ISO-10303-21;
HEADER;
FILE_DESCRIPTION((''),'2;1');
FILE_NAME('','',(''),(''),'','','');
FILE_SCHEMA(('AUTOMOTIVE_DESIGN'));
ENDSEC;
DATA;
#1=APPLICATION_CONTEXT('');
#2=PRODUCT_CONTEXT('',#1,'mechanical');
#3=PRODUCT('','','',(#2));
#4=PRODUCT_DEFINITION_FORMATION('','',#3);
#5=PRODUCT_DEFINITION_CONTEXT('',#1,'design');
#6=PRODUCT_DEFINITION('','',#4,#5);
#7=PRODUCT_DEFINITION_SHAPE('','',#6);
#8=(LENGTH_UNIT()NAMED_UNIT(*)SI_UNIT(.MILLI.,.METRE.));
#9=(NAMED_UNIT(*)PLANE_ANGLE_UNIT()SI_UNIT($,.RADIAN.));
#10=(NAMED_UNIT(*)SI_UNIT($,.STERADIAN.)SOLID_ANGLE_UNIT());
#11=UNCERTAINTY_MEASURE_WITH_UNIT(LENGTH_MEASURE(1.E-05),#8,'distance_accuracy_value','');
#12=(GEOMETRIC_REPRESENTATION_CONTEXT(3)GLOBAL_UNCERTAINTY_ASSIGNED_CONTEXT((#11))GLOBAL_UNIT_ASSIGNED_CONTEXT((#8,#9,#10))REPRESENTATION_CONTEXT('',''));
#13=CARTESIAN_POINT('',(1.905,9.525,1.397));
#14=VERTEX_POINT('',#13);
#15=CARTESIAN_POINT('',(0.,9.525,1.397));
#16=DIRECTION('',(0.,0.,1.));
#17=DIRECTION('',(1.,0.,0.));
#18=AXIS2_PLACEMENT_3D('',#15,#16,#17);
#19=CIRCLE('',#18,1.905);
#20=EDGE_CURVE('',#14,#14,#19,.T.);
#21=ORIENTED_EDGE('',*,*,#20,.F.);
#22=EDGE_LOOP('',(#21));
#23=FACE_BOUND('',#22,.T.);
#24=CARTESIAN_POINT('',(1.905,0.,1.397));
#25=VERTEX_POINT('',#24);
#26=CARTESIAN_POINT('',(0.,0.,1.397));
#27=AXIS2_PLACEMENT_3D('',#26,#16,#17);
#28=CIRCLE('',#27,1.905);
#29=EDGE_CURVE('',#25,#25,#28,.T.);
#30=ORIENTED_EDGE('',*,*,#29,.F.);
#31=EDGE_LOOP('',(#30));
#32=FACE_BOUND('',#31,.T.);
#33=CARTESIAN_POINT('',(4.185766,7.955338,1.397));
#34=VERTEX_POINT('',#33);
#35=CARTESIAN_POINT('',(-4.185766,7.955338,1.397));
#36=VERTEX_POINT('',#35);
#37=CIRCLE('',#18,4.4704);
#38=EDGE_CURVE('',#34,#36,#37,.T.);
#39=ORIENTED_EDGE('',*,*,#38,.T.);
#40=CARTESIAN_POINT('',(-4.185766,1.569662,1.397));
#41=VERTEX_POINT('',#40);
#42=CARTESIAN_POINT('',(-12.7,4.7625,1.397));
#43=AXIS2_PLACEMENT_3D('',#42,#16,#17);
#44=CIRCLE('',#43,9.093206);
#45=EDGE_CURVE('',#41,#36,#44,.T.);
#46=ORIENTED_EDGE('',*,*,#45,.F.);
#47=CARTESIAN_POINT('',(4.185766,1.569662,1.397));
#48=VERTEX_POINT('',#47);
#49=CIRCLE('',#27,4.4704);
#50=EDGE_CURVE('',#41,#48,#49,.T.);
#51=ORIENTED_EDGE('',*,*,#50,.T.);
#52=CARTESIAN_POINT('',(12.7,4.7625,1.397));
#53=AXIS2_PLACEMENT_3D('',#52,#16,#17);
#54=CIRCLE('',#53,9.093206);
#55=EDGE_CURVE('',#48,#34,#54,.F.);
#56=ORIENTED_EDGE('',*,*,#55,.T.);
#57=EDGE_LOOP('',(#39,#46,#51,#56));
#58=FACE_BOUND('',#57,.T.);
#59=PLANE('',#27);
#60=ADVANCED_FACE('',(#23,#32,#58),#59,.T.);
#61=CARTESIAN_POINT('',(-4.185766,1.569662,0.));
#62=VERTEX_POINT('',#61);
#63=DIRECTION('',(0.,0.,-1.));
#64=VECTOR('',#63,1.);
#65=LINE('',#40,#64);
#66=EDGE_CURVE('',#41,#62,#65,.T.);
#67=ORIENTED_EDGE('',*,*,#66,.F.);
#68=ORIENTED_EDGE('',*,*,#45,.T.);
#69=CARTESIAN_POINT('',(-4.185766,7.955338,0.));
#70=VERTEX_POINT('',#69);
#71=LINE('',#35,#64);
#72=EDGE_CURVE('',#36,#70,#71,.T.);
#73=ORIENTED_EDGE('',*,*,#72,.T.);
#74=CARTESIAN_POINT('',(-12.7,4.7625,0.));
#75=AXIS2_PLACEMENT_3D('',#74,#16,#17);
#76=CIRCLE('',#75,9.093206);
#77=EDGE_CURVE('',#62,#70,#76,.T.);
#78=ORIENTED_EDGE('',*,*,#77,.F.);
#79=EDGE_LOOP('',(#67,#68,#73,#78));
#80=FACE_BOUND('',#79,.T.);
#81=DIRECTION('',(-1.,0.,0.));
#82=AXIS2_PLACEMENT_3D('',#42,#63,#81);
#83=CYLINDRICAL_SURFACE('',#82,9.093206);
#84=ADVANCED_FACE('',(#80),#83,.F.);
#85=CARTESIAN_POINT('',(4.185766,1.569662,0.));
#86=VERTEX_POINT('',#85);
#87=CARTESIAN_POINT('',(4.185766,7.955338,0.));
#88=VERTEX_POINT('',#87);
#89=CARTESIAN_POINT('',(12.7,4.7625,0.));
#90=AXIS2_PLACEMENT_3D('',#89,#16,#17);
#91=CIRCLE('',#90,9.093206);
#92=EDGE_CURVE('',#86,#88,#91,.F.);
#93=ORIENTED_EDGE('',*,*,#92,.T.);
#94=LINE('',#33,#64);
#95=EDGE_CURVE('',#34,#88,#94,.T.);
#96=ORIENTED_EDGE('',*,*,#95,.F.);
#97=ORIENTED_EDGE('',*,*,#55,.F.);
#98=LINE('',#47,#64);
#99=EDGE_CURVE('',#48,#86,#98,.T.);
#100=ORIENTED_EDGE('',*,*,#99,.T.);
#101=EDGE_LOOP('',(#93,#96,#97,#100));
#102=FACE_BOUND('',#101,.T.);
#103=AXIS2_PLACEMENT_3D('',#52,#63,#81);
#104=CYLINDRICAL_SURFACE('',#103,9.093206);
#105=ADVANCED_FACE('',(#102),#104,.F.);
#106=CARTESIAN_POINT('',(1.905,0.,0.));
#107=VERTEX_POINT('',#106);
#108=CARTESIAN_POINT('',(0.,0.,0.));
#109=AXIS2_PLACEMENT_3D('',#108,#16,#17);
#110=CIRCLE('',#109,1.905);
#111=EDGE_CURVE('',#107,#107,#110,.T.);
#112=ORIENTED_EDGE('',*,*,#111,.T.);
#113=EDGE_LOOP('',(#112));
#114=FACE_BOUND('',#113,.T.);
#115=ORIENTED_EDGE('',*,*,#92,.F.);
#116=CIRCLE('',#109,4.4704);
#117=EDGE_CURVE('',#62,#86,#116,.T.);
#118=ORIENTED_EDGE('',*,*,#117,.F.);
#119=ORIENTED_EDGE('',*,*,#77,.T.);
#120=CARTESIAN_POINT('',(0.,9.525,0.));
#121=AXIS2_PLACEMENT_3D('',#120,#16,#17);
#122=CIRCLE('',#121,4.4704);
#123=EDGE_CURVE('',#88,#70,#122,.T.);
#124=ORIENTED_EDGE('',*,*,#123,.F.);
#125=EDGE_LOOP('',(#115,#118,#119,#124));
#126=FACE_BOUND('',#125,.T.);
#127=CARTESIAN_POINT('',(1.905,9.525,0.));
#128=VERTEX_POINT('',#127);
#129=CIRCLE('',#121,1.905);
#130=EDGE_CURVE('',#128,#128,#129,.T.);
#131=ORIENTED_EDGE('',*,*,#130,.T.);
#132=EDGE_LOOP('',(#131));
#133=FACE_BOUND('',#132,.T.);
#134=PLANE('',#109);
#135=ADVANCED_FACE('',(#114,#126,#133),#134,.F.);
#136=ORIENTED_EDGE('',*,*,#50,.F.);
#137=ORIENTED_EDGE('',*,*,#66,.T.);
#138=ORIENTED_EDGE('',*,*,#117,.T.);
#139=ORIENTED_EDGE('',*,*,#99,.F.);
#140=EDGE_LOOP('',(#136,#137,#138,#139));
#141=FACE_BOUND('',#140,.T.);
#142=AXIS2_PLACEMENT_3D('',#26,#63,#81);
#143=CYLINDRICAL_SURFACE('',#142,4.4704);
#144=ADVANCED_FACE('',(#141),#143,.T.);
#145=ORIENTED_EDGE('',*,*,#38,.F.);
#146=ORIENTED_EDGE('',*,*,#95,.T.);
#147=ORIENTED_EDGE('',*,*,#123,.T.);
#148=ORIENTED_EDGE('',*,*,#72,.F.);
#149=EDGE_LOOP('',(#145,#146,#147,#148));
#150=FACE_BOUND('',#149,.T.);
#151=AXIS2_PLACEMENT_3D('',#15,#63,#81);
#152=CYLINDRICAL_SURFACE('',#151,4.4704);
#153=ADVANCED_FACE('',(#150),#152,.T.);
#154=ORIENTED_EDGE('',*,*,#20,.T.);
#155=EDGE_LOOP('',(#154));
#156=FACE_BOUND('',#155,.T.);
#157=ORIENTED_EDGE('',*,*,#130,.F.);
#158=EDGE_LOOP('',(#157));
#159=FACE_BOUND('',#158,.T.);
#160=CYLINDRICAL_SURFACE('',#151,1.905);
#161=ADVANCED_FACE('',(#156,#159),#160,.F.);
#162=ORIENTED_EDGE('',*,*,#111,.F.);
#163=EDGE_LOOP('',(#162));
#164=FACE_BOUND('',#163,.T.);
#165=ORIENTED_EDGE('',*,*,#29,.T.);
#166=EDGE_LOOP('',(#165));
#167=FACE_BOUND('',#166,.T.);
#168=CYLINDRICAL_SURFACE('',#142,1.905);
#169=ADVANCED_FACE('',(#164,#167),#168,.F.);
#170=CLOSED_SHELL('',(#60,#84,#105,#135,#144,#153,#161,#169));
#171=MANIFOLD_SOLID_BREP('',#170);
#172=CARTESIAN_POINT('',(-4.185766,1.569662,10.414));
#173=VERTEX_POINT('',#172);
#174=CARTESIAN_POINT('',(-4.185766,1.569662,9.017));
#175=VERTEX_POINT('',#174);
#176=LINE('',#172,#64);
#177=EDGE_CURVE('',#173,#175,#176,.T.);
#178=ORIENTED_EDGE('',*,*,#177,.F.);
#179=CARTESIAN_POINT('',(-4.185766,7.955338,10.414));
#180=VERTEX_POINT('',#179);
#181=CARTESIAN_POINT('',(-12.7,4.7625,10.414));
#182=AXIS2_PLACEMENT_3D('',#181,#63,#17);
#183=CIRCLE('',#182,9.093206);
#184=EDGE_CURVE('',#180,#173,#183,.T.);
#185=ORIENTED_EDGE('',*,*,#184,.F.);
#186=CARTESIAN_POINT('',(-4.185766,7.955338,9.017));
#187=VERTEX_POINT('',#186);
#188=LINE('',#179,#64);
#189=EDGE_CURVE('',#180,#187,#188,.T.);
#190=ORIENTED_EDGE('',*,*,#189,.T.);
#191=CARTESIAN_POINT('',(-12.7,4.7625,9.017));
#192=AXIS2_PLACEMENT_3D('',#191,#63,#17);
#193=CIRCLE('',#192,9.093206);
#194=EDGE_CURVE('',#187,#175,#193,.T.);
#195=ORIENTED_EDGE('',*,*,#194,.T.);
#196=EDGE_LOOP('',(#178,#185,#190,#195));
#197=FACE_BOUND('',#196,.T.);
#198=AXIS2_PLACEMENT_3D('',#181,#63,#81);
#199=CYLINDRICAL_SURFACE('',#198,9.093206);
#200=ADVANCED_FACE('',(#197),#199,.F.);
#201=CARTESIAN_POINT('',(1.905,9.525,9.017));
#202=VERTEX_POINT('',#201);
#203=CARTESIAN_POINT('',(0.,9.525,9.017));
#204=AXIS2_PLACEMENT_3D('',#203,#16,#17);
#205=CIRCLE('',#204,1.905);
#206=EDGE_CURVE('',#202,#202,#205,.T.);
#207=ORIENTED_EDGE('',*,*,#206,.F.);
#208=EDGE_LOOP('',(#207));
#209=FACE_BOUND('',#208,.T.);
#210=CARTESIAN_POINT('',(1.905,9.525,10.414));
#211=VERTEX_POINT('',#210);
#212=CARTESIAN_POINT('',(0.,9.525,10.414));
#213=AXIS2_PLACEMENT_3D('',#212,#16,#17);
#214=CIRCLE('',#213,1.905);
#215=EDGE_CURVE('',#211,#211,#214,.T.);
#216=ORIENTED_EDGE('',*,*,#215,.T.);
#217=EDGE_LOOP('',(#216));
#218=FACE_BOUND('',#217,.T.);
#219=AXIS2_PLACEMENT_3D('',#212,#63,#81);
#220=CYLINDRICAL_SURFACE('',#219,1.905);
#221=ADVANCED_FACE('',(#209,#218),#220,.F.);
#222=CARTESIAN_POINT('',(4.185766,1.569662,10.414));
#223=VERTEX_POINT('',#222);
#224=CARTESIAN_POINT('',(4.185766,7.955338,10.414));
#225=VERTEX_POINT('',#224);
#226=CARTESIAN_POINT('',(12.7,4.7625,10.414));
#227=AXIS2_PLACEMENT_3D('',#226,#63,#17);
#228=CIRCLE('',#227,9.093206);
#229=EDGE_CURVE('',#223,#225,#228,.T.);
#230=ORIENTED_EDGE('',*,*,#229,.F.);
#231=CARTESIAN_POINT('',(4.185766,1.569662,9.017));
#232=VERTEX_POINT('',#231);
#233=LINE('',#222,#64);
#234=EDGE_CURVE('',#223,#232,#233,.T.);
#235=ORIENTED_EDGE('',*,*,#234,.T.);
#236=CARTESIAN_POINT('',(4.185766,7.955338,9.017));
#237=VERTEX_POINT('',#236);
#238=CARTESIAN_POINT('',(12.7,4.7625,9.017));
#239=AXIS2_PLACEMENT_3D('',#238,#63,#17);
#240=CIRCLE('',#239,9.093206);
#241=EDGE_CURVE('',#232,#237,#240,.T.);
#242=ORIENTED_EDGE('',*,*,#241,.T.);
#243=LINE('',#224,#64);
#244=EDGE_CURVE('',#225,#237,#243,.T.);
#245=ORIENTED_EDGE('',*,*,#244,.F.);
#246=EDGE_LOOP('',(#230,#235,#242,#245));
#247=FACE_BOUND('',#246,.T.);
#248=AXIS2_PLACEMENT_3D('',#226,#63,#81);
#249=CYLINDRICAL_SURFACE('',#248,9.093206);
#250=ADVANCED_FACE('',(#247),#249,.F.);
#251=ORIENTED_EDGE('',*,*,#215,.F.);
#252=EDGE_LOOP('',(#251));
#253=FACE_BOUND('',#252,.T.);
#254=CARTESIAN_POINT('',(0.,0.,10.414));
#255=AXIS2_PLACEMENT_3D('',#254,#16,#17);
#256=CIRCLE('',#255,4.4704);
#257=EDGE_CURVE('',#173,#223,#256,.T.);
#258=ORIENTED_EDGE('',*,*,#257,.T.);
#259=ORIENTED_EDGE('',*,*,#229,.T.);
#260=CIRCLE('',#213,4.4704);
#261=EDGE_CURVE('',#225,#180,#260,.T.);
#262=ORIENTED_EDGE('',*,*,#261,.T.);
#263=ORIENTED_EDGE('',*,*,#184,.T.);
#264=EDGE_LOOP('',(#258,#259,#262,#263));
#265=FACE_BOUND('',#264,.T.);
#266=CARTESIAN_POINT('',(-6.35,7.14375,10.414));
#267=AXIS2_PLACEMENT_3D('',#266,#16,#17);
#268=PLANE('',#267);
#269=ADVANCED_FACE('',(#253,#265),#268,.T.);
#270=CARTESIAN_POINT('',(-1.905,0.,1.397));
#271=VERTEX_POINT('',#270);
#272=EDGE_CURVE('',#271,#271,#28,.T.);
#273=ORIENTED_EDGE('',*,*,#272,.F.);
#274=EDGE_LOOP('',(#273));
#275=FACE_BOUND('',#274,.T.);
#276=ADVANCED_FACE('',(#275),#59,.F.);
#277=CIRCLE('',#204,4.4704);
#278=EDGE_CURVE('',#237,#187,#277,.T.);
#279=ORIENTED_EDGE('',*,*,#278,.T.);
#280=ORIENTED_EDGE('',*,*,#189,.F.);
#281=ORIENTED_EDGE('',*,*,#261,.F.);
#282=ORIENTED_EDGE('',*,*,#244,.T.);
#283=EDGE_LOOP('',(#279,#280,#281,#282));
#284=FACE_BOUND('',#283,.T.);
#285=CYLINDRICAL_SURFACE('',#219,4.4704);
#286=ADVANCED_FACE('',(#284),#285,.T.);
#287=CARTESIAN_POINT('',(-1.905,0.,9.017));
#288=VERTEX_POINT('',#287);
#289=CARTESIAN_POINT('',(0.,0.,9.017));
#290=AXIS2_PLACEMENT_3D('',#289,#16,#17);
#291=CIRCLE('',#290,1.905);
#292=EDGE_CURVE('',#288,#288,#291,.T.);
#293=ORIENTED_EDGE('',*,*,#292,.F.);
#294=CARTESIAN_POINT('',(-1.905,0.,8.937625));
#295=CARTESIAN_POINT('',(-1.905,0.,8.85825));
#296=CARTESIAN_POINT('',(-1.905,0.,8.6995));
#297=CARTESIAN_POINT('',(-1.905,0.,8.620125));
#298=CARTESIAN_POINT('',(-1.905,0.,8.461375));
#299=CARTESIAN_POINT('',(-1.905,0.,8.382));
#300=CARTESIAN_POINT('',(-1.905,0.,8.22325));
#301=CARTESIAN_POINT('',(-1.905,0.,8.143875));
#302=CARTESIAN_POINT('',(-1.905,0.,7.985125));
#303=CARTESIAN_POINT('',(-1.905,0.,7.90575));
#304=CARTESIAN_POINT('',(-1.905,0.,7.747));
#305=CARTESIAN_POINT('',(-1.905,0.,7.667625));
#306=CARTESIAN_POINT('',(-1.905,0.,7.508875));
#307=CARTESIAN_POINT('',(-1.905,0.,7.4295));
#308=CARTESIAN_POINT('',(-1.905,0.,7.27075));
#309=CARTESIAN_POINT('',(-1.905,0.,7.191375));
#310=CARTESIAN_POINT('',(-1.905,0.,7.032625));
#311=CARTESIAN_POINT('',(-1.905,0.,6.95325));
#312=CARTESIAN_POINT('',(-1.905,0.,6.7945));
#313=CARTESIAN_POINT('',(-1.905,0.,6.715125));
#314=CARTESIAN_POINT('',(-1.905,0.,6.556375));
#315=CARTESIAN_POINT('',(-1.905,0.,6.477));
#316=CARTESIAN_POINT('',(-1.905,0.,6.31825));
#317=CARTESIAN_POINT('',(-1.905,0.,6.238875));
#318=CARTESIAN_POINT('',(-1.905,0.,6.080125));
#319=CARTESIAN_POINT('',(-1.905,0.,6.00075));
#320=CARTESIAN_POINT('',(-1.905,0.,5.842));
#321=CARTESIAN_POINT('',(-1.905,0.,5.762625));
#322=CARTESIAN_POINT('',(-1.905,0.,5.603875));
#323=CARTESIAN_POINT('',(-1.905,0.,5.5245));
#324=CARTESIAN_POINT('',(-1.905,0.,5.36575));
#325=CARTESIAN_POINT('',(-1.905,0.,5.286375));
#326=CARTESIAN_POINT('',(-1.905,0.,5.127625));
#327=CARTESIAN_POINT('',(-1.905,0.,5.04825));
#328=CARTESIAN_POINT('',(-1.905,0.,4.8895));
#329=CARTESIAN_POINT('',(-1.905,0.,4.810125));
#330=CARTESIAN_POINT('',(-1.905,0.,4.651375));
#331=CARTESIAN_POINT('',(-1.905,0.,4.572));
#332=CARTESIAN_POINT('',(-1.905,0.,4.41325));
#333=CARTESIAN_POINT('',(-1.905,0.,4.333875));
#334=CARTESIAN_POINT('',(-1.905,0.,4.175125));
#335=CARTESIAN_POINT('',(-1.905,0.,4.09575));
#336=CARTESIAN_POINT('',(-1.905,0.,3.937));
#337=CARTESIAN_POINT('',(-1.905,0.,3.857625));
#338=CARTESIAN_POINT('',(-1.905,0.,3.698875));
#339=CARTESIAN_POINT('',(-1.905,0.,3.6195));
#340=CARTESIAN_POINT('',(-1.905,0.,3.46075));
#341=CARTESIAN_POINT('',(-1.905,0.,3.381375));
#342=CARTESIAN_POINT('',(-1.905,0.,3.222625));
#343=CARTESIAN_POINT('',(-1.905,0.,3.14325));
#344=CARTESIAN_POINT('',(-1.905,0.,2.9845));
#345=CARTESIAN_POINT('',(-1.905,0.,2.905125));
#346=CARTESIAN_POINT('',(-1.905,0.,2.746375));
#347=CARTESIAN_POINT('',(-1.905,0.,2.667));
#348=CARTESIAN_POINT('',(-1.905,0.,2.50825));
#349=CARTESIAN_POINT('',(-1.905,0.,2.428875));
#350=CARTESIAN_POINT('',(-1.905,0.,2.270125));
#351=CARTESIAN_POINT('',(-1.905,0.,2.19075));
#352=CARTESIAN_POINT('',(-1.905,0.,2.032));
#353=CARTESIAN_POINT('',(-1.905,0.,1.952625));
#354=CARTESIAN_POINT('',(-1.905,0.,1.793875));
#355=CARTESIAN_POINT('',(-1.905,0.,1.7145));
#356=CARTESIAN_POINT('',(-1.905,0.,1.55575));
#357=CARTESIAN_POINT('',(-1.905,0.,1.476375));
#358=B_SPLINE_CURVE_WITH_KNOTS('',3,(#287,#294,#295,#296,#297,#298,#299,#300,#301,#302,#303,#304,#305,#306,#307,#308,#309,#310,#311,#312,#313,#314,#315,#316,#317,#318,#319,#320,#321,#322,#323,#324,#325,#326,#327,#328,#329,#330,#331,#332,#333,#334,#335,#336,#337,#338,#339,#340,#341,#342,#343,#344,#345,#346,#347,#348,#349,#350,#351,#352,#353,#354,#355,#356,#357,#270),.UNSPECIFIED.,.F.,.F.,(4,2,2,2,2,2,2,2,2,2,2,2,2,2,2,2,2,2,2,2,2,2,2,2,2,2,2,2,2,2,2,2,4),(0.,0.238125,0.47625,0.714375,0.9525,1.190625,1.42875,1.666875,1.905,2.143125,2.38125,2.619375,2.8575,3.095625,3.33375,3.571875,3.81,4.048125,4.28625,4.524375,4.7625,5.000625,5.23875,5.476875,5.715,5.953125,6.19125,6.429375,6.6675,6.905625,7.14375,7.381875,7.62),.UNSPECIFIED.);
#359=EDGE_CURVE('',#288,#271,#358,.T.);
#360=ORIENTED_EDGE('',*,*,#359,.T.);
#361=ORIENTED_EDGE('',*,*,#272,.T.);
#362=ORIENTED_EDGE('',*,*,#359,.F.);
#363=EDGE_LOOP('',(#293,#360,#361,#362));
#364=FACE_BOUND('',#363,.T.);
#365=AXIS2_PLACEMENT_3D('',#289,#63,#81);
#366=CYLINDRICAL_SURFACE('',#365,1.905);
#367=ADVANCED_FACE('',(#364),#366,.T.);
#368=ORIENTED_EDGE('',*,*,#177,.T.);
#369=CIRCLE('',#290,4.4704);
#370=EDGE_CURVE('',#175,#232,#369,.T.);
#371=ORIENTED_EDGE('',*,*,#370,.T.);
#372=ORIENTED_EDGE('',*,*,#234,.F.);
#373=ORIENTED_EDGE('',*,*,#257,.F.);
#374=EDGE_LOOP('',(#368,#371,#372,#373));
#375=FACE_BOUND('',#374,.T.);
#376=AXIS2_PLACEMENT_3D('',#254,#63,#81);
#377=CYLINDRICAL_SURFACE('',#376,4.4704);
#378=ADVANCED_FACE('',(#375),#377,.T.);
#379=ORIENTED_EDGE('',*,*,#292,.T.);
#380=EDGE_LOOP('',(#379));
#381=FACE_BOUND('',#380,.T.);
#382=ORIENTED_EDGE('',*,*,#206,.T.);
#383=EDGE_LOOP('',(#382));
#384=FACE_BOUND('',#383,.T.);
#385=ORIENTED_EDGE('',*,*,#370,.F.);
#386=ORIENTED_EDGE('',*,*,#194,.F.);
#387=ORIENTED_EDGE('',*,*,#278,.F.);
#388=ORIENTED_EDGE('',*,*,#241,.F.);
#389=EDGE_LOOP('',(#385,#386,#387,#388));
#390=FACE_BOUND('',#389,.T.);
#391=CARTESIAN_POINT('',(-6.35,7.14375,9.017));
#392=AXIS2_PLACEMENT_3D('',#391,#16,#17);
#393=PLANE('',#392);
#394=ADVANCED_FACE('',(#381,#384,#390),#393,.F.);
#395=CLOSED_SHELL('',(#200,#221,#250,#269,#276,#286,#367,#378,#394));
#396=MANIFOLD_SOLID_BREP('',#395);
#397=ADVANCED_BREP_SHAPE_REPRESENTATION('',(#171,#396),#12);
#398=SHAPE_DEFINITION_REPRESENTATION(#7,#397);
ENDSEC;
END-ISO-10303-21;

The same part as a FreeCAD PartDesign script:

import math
import FreeCAD as App
import Part
import Sketcher

V = App.Vector
Q = App.Units.Quantity

doc = App.newDocument("Part")
body = doc.addObject("PartDesign::Body", "Body")

# Sketch on XY plane
sketch1 = doc.addObject("Sketcher::SketchObject", "Sketch")
body.addObject(sketch1)
sketch1.AttachmentSupport = (doc.XY_Plane, [""])
sketch1.MapMode = "FlatFace"
sketch1.addGeometry([
    Part.ArcOfCircle(Part.Circle(V(12.7, 4.8, 0), V(0, 0, 1), 9.1), math.radians(159), math.radians(201)),  # 0
    Part.ArcOfCircle(Part.Circle(V(0, 9.5, 0), V(0, 0, 1), 4.5), math.radians(-21), math.radians(201)),  # 1
    Part.ArcOfCircle(Part.Circle(V(-12.7, 4.8, 0), V(0, 0, 1), 9.1), math.radians(-21), math.radians(21)),  # 2
    Part.ArcOfCircle(Part.Circle(V(0, 0, 0), V(0, 0, 1), 4.5), math.radians(159), math.radians(381)),  # 3
    Part.Circle(V(0, 0, 0), V(0, 0, 1), 1.9),  # 4
    Part.Circle(V(0, 9.5, 0), V(0, 0, 1), 1.9),  # 5
], False)
sketch1.addConstraint([
    Sketcher.Constraint("Tangent", 0, 1, 1, 1),
    Sketcher.Constraint("Tangent", 1, 2, 2, 2),
    Sketcher.Constraint("Tangent", 2, 1, 3, 1),
    Sketcher.Constraint("Tangent", 3, 2, 0, 2),
    Sketcher.Constraint("Coincident", 3, 3, -1, 1),
    Sketcher.Constraint("Coincident", 4, 3, -1, 1),
    Sketcher.Constraint("Coincident", 5, 3, 1, 3),
    Sketcher.Constraint("Equal", 0, 2),
    Sketcher.Constraint("Equal", 1, 3),
    Sketcher.Constraint("Equal", 4, 5),
    Sketcher.Constraint("PointOnObject", 1, 3, -2),
    Sketcher.Constraint("Diameter", 4, Q("0.15 in")),
    Sketcher.Constraint("Radius", 1, Q("0.176 in")),
    Sketcher.Constraint("DistanceX", 2, 3, 0, 3, Q("1 in")),
    Sketcher.Constraint("DistanceY", -1, 1, 0, 3, Q("0.1875 in")),
])
pad1 = doc.addObject("PartDesign::Pad", "Pad")
body.addObject(pad1)
pad1.Profile = sketch1
pad1.Length = Q("0.055 in")
body2 = doc.addObject("PartDesign::Body", "Body001")

# Sketch on XY plane
sketch2 = doc.addObject("Sketcher::SketchObject", "Sketch001")
body2.addObject(sketch2)
sketch2.AttachmentSupport = (doc.getObject("XY_Plane001"), [""])
sketch2.MapMode = "FlatFace"
sketch2.AttachmentOffset = App.Placement(V(0, 0, 0.055 * 25.4), App.Rotation())
sketch2.addGeometry(Part.Circle(V(0, 0, 0), V(0, 0, 1), 1.9), False)
sketch2.addConstraint([
    Sketcher.Constraint("Coincident", 0, 3, -1, 1),
    Sketcher.Constraint("Diameter", 0, Q("0.15 in")),
])
pad2 = doc.addObject("PartDesign::Pad", "Pad001")
body2.addObject(pad2)
pad2.Profile = sketch2
pad2.Length = Q("0.3 in")

# Sketch on XY plane
sketch3 = doc.addObject("Sketcher::SketchObject", "Sketch002")
body2.addObject(sketch3)
sketch3.AttachmentSupport = (doc.getObject("XY_Plane001"), [""])
sketch3.MapMode = "FlatFace"
sketch3.AttachmentOffset = App.Placement(V(0, 0, 0.355 * 25.4), App.Rotation())
sketch3.addGeometry([
    Part.ArcOfCircle(Part.Circle(V(0, 0, 0), V(0, 0, 1), 4.5), math.radians(159), math.radians(381)),  # 0
    Part.ArcOfCircle(Part.Circle(V(12.7, 4.8, 0), V(0, 0, 1), 9.1), math.radians(159), math.radians(201)),  # 1
    Part.ArcOfCircle(Part.Circle(V(0, 9.5, 0), V(0, 0, 1), 4.5), math.radians(-21), math.radians(201)),  # 2
    Part.ArcOfCircle(Part.Circle(V(-12.7, 4.8, 0), V(0, 0, 1), 9.1), math.radians(-21), math.radians(21)),  # 3
    Part.Circle(V(0, 9.5, 0), V(0, 0, 1), 1.9),  # 4
], False)
sketch3.addConstraint([
    Sketcher.Constraint("Tangent", 0, 2, 1, 2),
    Sketcher.Constraint("Tangent", 1, 1, 2, 1),
    Sketcher.Constraint("Tangent", 2, 2, 3, 2),
    Sketcher.Constraint("Tangent", 3, 1, 0, 1),
    Sketcher.Constraint("Coincident", 0, 3, -1, 1),
    Sketcher.Constraint("Coincident", 4, 3, 2, 3),
    Sketcher.Constraint("Equal", 0, 2),
    Sketcher.Constraint("Equal", 1, 3),
    Sketcher.Constraint("PointOnObject", 2, 3, -2),
    Sketcher.Constraint("Diameter", 4, Q("0.15 in")),
    Sketcher.Constraint("Radius", 0, Q("0.176 in")),
    Sketcher.Constraint("DistanceX", 3, 3, 1, 3, Q("1 in")),
    Sketcher.Constraint("DistanceY", -1, 1, 1, 3, Q("0.1875 in")),
])
pad3 = doc.addObject("PartDesign::Pad", "Pad002")
body2.addObject(pad3)
pad3.Profile = sketch3
pad3.Length = Q("0.055 in")

doc.recompute()
